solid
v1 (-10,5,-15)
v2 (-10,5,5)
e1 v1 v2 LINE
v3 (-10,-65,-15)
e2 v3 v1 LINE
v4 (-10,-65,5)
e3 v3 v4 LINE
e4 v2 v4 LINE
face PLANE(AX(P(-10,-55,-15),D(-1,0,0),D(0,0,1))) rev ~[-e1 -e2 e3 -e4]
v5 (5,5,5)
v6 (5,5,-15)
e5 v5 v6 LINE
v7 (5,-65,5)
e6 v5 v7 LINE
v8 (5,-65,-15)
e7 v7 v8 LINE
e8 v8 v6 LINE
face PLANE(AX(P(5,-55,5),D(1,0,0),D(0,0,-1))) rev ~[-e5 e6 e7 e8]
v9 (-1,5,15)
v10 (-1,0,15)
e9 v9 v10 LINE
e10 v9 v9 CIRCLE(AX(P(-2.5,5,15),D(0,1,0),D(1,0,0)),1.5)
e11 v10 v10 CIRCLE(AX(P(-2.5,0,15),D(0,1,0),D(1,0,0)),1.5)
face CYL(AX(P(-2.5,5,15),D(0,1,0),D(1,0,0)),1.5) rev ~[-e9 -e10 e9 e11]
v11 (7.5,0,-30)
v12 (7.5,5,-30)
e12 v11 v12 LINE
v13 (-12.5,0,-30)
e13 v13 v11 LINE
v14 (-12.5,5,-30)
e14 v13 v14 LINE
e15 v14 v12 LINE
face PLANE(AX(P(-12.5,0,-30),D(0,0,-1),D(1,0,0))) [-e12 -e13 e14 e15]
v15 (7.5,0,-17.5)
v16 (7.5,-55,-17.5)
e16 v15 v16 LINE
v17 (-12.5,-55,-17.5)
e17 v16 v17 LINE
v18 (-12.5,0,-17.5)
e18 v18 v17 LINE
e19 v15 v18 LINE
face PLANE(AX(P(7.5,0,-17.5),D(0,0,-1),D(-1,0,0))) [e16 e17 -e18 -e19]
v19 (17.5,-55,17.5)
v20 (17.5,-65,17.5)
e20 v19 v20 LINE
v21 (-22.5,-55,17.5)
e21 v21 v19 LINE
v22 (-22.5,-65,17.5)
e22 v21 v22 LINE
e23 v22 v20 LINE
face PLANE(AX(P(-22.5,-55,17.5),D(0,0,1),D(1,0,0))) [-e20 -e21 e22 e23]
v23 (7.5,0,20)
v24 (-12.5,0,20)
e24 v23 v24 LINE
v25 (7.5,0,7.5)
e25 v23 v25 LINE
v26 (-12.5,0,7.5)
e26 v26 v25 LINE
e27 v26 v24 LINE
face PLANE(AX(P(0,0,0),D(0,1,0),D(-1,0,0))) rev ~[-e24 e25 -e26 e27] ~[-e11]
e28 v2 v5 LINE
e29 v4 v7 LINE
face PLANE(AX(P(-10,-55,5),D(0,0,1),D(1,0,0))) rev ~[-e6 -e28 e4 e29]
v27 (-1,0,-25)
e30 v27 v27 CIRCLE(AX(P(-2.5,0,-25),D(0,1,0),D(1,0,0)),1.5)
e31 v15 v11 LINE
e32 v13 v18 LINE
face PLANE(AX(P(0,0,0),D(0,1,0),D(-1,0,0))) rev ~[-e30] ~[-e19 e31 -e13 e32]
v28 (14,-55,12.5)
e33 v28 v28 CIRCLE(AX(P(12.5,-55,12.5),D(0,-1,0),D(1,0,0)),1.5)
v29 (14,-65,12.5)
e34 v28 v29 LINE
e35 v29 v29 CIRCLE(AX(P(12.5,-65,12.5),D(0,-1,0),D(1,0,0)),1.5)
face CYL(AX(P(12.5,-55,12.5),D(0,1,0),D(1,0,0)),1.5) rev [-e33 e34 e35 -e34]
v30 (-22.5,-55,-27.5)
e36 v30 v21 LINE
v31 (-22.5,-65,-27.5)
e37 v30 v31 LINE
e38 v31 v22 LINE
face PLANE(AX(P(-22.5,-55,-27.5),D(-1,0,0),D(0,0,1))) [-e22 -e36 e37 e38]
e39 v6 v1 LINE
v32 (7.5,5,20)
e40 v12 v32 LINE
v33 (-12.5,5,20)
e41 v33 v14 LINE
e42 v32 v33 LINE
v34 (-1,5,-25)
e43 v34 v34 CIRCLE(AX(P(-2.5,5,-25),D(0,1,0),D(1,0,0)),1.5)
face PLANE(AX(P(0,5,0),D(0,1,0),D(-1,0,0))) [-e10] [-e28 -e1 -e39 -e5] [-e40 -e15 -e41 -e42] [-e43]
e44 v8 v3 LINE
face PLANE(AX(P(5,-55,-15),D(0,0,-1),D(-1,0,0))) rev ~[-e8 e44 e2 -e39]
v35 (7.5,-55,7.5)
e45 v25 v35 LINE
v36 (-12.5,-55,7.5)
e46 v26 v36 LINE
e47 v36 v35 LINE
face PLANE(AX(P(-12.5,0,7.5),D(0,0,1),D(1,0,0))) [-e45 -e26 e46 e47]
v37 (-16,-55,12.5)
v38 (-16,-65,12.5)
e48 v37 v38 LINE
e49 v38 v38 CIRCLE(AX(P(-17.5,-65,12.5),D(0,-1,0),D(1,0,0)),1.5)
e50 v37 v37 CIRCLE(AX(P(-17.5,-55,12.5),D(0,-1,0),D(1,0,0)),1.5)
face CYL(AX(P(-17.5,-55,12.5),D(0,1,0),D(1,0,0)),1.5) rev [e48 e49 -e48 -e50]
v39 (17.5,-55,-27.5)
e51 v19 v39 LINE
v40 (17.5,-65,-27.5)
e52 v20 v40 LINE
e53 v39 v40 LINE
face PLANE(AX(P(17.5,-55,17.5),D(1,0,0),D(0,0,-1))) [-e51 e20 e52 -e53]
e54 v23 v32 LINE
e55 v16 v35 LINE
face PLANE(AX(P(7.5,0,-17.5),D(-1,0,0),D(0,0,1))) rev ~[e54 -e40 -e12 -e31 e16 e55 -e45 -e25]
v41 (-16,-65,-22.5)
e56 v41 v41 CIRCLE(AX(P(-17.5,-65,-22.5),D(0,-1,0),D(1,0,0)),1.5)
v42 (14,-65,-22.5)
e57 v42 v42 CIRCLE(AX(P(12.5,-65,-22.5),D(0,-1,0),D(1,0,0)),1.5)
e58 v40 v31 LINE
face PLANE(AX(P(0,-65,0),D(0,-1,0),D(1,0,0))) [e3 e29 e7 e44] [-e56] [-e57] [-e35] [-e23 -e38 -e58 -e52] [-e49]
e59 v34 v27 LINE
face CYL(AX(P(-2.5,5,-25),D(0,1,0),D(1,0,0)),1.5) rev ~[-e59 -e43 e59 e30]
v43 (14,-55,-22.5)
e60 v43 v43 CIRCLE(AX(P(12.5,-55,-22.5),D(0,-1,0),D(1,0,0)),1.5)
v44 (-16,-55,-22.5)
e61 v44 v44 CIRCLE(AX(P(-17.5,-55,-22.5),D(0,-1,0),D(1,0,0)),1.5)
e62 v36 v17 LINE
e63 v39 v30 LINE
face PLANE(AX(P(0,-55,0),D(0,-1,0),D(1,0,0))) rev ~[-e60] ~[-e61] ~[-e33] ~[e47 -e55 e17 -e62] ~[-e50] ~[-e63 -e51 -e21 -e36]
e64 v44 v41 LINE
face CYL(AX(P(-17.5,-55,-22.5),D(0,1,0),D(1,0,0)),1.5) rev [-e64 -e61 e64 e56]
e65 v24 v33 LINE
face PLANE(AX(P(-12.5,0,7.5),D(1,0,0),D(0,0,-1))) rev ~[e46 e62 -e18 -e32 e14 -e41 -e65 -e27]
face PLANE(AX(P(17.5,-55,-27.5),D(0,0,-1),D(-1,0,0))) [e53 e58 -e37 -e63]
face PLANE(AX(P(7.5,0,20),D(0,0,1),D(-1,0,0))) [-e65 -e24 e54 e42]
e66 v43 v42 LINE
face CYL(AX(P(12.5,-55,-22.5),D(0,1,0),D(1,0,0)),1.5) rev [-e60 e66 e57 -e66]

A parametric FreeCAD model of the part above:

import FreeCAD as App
import Part
import Sketcher

V = App.Vector
Q = App.Units.Quantity

doc = App.newDocument("Part")
body = doc.addObject("PartDesign::Body", "Body")
body.AllowCompound = True

sketch1 = body.newObject("Sketcher::SketchObject", "Sketch")
sketch1.AttachmentSupport = (doc.getObject("XZ_Plane"), [""])
sketch1.MapMode = "FlatFace"
sketch1.addGeometry([
    Part.LineSegment(V(-12, 20, 0), V(8, 20, 0)),
    Part.LineSegment(V(8, 20, 0), V(8, -30, 0)),
    Part.LineSegment(V(8, -30, 0), V(-12, -30, 0)),
    Part.LineSegment(V(-12, -30, 0), V(-12, 20, 0)),
    Part.LineSegment(V(0, 0, 0), V(-5, 0, 0)),
    Part.LineSegment(V(-5, 0, 0), V(-5, -10, 0)),
    Part.LineSegment(V(-5, -10, 0), V(0, -10, 0)),
    Part.LineSegment(V(0, -10, 0), V(0, 0, 0)),
], False)
sketch1.addConstraint([
    Sketcher.Constraint("Coincident", 0, 2, 1, 1),
    Sketcher.Constraint("Coincident", 1, 2, 2, 1),
    Sketcher.Constraint("Coincident", 2, 2, 3, 1),
    Sketcher.Constraint("Coincident", 3, 2, 0, 1),
    Sketcher.Constraint("Coincident", 4, 2, 5, 1),
    Sketcher.Constraint("Coincident", 5, 2, 6, 1),
    Sketcher.Constraint("Coincident", 6, 2, 7, 1),
    Sketcher.Constraint("Coincident", 7, 2, 4, 1),
    Sketcher.Constraint("Horizontal", 0),
    Sketcher.Constraint("Vertical", 1),
    Sketcher.Constraint("Horizontal", 2),
    Sketcher.Constraint("Vertical", 3),
    Sketcher.Constraint("Horizontal", 4),
    Sketcher.Constraint("Vertical", 5),
    Sketcher.Constraint("Horizontal", 6),
    Sketcher.Constraint("Vertical", 7),
    Sketcher.Constraint("Coincident", 7, 2, -1, 1),
    Sketcher.Constraint("DistanceX", 0, 1, 0, 2, Q("20 mm")),
    Sketcher.Constraint("DistanceX", 4, 2, 4, 1, Q("5 mm")),
    Sketcher.Constraint("DistanceY", 1, 2, 1, 1, Q("50 mm")),
    Sketcher.Constraint("DistanceY", 5, 2, 5, 1, Q("10 mm")),
    Sketcher.Constraint("DistanceY", -1, 1, 0, 2, Q("20 mm")),
    Sketcher.Constraint("DistanceX", -1, 1, 0, 2, Q("7.5 mm")),
])
pad1 = body.newObject("PartDesign::Pad", "Pad")
pad1.Profile = sketch1
pad1.Length = 5
pad1.Reversed = True

sketch2 = body.newObject("Sketcher::SketchObject", "Sketch001")
sketch2.AttachmentSupport = (doc.getObject("XZ_Plane"), [""])
sketch2.MapMode = "FlatFace"
sketch2.addGeometry([
    Part.LineSegment(V(-12, 8, 0), V(8, 8, 0)),
    Part.LineSegment(V(8, 8, 0), V(8, -18, 0)),
    Part.LineSegment(V(8, -18, 0), V(-12, -18, 0)),
    Part.LineSegment(V(-12, -18, 0), V(-12, 8, 0)),
    Part.LineSegment(V(0, -10, 0), V(0, 0, 0)),
    Part.LineSegment(V(0, 0, 0), V(-5, 0, 0)),
    Part.LineSegment(V(-5, 0, 0), V(-5, -10, 0)),
    Part.LineSegment(V(-5, -10, 0), V(0, -10, 0)),
], False)
sketch2.addConstraint([
    Sketcher.Constraint("Coincident", 0, 2, 1, 1),
    Sketcher.Constraint("Coincident", 1, 2, 2, 1),
    Sketcher.Constraint("Coincident", 2, 2, 3, 1),
    Sketcher.Constraint("Coincident", 3, 2, 0, 1),
    Sketcher.Constraint("Coincident", 4, 2, 5, 1),
    Sketcher.Constraint("Coincident", 5, 2, 6, 1),
    Sketcher.Constraint("Coincident", 6, 2, 7, 1),
    Sketcher.Constraint("Coincident", 7, 2, 4, 1),
    Sketcher.Constraint("Horizontal", 0),
    Sketcher.Constraint("Vertical", 1),
    Sketcher.Constraint("Horizontal", 2),
    Sketcher.Constraint("Vertical", 3),
    Sketcher.Constraint("Vertical", 4),
    Sketcher.Constraint("Horizontal", 5),
    Sketcher.Constraint("Vertical", 6),
    Sketcher.Constraint("Horizontal", 7),
    Sketcher.Constraint("Coincident", 4, 2, -1, 1),
    Sketcher.Constraint("DistanceX", 0, 1, 0, 2, Q("20 mm")),
    Sketcher.Constraint("DistanceX", 5, 2, 5, 1, Q("5 mm")),
    Sketcher.Constraint("DistanceY", 4, 1, 4, 2, Q("10 mm")),
    Sketcher.Constraint("DistanceX", -1, 1, 0, 2, Q("7.5 mm")),
    Sketcher.Constraint("DistanceY", -1, 1, 0, 2, Q("7.5 mm")),
    Sketcher.Constraint("DistanceY", 2, 2, 6, 2, Q("7.5 mm")),
])
pad2 = body.newObject("PartDesign::Pad", "Pad001")
pad2.Profile = sketch2
pad2.Length = 55

sketch3 = body.newObject("Sketcher::SketchObject", "Sketch002")
sketch3.AttachmentSupport = (doc.getObject("XZ_Plane"), [""])
sketch3.MapMode = "FlatFace"
sketch3.AttachmentOffset = App.Placement(V(0, 0, 55), App.Rotation())
sketch3.addGeometry([
    Part.LineSegment(V(17.5, -27.5, 0), V(17.5, 17.5, 0)),
    Part.LineSegment(V(17.5, 17.5, 0), V(-22.5, 17.5, 0)),
    Part.LineSegment(V(-22.5, 17.5, 0), V(-22.5, -27.5, 0)),
    Part.LineSegment(V(-22.5, -27.5, 0), V(17.5, -27.5, 0)),
    Part.Circle(V(-17.5, -22.5, 0), V(0, 0, 1), 1.5),
    Part.Circle(V(12.5, -22.5, 0), V(0, 0, 1), 1.5),
    Part.Circle(V(-17.5, 12.5, 0), V(0, 0, 1), 1.5),
    Part.LineSegment(V(-12.5, -17.5, 0), V(-12.5, 7.5, 0)),
    Part.LineSegment(V(-12.5, 7.5, 0), V(7.5, 7.5, 0)),
    Part.LineSegment(V(7.5, 7.5, 0), V(7.5, -17.5, 0)),
    Part.LineSegment(V(7.5, -17.5, 0), V(-12.5, -17.5, 0)),
    Part.Circle(V(12.5, 12.5, 0), V(0, 0, 1), 1.5),
], False)
sketch3.addConstraint([
    Sketcher.Constraint("Coincident", 0, 2, 1, 1),
    Sketcher.Constraint("Coincident", 1, 2, 2, 1),
    Sketcher.Constraint("Coincident", 2, 2, 3, 1),
    Sketcher.Constraint("Coincident", 3, 2, 0, 1),
    Sketcher.Constraint("Coincident", 7, 2, 8, 1),
    Sketcher.Constraint("Coincident", 8, 2, 9, 1),
    Sketcher.Constraint("Coincident", 9, 2, 10, 1),
    Sketcher.Constraint("Coincident", 10, 2, 7, 1),
    Sketcher.Constraint("Vertical", 0),
    Sketcher.Constraint("Horizontal", 1),
    Sketcher.Constraint("Vertical", 2),
    Sketcher.Constraint("Horizontal", 3),
    Sketcher.Constraint("Vertical", 7),
    Sketcher.Constraint("Horizontal", 8),
    Sketcher.Constraint("Vertical", 9),
    Sketcher.Constraint("Horizontal", 10),
    Sketcher.Constraint("Equal", 4, 5),
    Sketcher.Constraint("Equal", 5, 6),
    Sketcher.Constraint("Equal", 6, 11),
    Sketcher.Constraint("Horizontal", 4, 3, 5, 3),
    Sketcher.Constraint("Horizontal", 6, 3, 11, 3),
    Sketcher.Constraint("Vertical", 4, 3, 6, 3),
    Sketcher.Constraint("Vertical", 5, 3, 11, 3),
    Sketcher.Constraint("Diameter", 4, Q("3 mm")),
    Sketcher.Constraint("DistanceX", 11, 3, 0, 2, Q("5 mm")),
    Sketcher.Constraint("DistanceY", 11, 3, 0, 2, Q("5 mm")),
    Sketcher.Constraint("DistanceX", 1, 2, 6, 3, Q("5 mm")),
    Sketcher.Constraint("DistanceY", 2, 2, 4, 3, Q("5 mm")),
    Sketcher.Constraint("DistanceX", 6, 3, 7, 2, Q("5 mm")),
    Sketcher.Constraint("DistanceY", 7, 2, 6, 3, Q("5 mm")),
    Sketcher.Constraint("DistanceX", 8, 2, 11, 3, Q("5 mm")),
    Sketcher.Constraint("DistanceY", 5, 3, 9, 2, Q("5 mm")),
    Sketcher.Constraint("DistanceX", 1, 2, 1, 1, Q("40 mm")),
    Sketcher.Constraint("DistanceY", 0, 1, 0, 2, Q("45 mm")),
    Sketcher.Constraint("DistanceX", 4, 3, -1, 1, Q("17.5 mm")),
    Sketcher.Constraint("DistanceY", 4, 3, -1, 1, Q("22.5 mm")),
])
pad3 = body.newObject("PartDesign::Pad", "Pad002")
pad3.Profile = sketch3
pad3.Length = 10

sketch4 = body.newObject("Sketcher::SketchObject", "Sketch003")
sketch4.AttachmentSupport = (doc.getObject("XZ_Plane"), [""])
sketch4.MapMode = "FlatFace"
sketch4.AttachmentOffset = App.Placement(V(0, 0, -5), App.Rotation())
sketch4.addGeometry([
    Part.LineSegment(V(5, 5, 0), V(5, -15, 0)),
    Part.LineSegment(V(5, -15, 0), V(-10, -15, 0)),
    Part.LineSegment(V(-10, -15, 0), V(-10, 5, 0)),
    Part.LineSegment(V(-10, 5, 0), V(5, 5, 0)),
    Part.LineSegment(V(0, -10, 0), V(0, 0, 0)),
    Part.LineSegment(V(0, 0, 0), V(-5, 0, 0)),
    Part.LineSegment(V(-5, 0, 0), V(-5, -10, 0)),
    Part.LineSegment(V(-5, -10, 0), V(0, -10, 0)),
], False)
sketch4.addConstraint([
    Sketcher.Constraint("Coincident", 0, 2, 1, 1),
    Sketcher.Constraint("Coincident", 1, 2, 2, 1),
    Sketcher.Constraint("Coincident", 2, 2, 3, 1),
    Sketcher.Constraint("Coincident", 3, 2, 0, 1),
    Sketcher.Constraint("Coincident", 4, 2, 5, 1),
    Sketcher.Constraint("Coincident", 5, 2, 6, 1),
    Sketcher.Constraint("Coincident", 6, 2, 7, 1),
    Sketcher.Constraint("Coincident", 7, 2, 4, 1),
    Sketcher.Constraint("Vertical", 0),
    Sketcher.Constraint("Horizontal", 1),
    Sketcher.Constraint("Vertical", 2),
    Sketcher.Constraint("Horizontal", 3),
    Sketcher.Constraint("Vertical", 4),
    Sketcher.Constraint("Horizontal", 5),
    Sketcher.Constraint("Vertical", 6),
    Sketcher.Constraint("Horizontal", 7),
    Sketcher.Constraint("Coincident", 4, 2, -1, 1),
    Sketcher.Constraint("DistanceX", 5, 2, 5, 1, Q("5 mm")),
    Sketcher.Constraint("DistanceX", -1, 1, 0, 2, Q("5 mm")),
    Sketcher.Constraint("DistanceY", -1, 1, 2, 2, Q("5 mm")),
    Sketcher.Constraint("DistanceX", 2, 2, 5, 2, Q("5 mm")),
    Sketcher.Constraint("DistanceY", 1, 2, 6, 2, Q("5 mm")),
    Sketcher.Constraint("DistanceY", 0, 2, 0, 1, Q("20 mm")),
])
pocket1 = body.newObject("PartDesign::Pocket", "Pocket")
pocket1.Profile = sketch4
pocket1.Type = "ThroughAll"
pocket1.Reversed = True

sketch5 = body.newObject("Sketcher::SketchObject", "Sketch004")
sketch5.AttachmentSupport = (doc.getObject("XZ_Plane"), [""])
sketch5.MapMode = "FlatFace"
sketch5.AttachmentOffset = App.Placement(V(0, 0, 55), App.Rotation())
sketch5.addGeometry([
    Part.LineSegment(V(8, 8, 0), V(-12, 8, 0)),
    Part.LineSegment(V(-12, 8, 0), V(-12, -18, 0)),
    Part.LineSegment(V(-12, -18, 0), V(8, -18, 0)),
    Part.LineSegment(V(8, -18, 0), V(8, 8, 0)),
    Part.LineSegment(V(-10, -15, 0), V(-10, 5, 0)),
    Part.LineSegment(V(-10, 5, 0), V(5, 5, 0)),
    Part.LineSegment(V(5, 5, 0), V(5, -15, 0)),
    Part.LineSegment(V(5, -15, 0), V(-10, -15, 0)),
], False)
sketch5.addConstraint([
    Sketcher.Constraint("Coincident", 0, 2, 1, 1),
    Sketcher.Constraint("Coincident", 1, 2, 2, 1),
    Sketcher.Constraint("Coincident", 2, 2, 3, 1),
    Sketcher.Constraint("Coincident", 3, 2, 0, 1),
    Sketcher.Constraint("Coincident", 4, 2, 5, 1),
    Sketcher.Constraint("Coincident", 5, 2, 6, 1),
    Sketcher.Constraint("Coincident", 6, 2, 7, 1),
    Sketcher.Constraint("Coincident", 7, 2, 4, 1),
    Sketcher.Constraint("Horizontal", 0),
    Sketcher.Constraint("Vertical", 1),
    Sketcher.Constraint("Horizontal", 2),
    Sketcher.Constraint("Vertical", 3),
    Sketcher.Constraint("Vertical", 4),
    Sketcher.Constraint("Horizontal", 5),
    Sketcher.Constraint("Vertical", 6),
    Sketcher.Constraint("Horizontal", 7),
    Sketcher.Constraint("Equal", 2, 4),
    Sketcher.Constraint("DistanceX", 0, 2, 0, 1, Q("20 mm")),
    Sketcher.Constraint("DistanceX", 5, 1, 5, 2, Q("15 mm")),
    Sketcher.Constraint("DistanceY", 1, 2, 1, 1, Q("25 mm")),
    Sketcher.Constraint("DistanceX", 4, 2, -1, 1, Q("10 mm")),
    Sketcher.Constraint("DistanceY", -1, 1, 4, 2, Q("5 mm")),
    Sketcher.Constraint("DistanceX", 0, 2, -1, 1, Q("12.5 mm")),
    Sketcher.Constraint("DistanceY", -1, 1, 0, 2, Q("7.5 mm")),
])
pad4 = body.newObject("PartDesign::Pad", "Pad003")
pad4.Profile = sketch5
pad4.Length = 10

sketch6 = body.newObject("Sketcher::SketchObject", "Sketch005")
sketch6.AttachmentSupport = (doc.getObject("XZ_Plane"), [""])
sketch6.MapMode = "FlatFace"
sketch6.AttachmentOffset = App.Placement(V(0, 0, -5), App.Rotation())
sketch6.addGeometry([
    Part.Circle(V(-2.5, 15, 0), V(0, 0, 1), 1.5),
    Part.Circle(V(-2.5, -25, 0), V(0, 0, 1), 1.5),
], False)
sketch6.addConstraint([
    Sketcher.Constraint("Equal", 0, 1),
    Sketcher.Constraint("Vertical", 0, 3, 1, 3),
    Sketcher.Constraint("Diameter", 0, Q("3 mm")),
    Sketcher.Constraint("DistanceY", -1, 1, 0, 3, Q("15 mm")),
    Sketcher.Constraint("DistanceY", 1, 3, -1, 1, Q("25 mm")),
    Sketcher.Constraint("DistanceX", 0, 3, -1, 1, Q("2.5 mm")),
])
pocket2 = body.newObject("PartDesign::Pocket", "Pocket001")
pocket2.Profile = sketch6
pocket2.Length = 10
pocket2.Reversed = True

doc.recompute()
